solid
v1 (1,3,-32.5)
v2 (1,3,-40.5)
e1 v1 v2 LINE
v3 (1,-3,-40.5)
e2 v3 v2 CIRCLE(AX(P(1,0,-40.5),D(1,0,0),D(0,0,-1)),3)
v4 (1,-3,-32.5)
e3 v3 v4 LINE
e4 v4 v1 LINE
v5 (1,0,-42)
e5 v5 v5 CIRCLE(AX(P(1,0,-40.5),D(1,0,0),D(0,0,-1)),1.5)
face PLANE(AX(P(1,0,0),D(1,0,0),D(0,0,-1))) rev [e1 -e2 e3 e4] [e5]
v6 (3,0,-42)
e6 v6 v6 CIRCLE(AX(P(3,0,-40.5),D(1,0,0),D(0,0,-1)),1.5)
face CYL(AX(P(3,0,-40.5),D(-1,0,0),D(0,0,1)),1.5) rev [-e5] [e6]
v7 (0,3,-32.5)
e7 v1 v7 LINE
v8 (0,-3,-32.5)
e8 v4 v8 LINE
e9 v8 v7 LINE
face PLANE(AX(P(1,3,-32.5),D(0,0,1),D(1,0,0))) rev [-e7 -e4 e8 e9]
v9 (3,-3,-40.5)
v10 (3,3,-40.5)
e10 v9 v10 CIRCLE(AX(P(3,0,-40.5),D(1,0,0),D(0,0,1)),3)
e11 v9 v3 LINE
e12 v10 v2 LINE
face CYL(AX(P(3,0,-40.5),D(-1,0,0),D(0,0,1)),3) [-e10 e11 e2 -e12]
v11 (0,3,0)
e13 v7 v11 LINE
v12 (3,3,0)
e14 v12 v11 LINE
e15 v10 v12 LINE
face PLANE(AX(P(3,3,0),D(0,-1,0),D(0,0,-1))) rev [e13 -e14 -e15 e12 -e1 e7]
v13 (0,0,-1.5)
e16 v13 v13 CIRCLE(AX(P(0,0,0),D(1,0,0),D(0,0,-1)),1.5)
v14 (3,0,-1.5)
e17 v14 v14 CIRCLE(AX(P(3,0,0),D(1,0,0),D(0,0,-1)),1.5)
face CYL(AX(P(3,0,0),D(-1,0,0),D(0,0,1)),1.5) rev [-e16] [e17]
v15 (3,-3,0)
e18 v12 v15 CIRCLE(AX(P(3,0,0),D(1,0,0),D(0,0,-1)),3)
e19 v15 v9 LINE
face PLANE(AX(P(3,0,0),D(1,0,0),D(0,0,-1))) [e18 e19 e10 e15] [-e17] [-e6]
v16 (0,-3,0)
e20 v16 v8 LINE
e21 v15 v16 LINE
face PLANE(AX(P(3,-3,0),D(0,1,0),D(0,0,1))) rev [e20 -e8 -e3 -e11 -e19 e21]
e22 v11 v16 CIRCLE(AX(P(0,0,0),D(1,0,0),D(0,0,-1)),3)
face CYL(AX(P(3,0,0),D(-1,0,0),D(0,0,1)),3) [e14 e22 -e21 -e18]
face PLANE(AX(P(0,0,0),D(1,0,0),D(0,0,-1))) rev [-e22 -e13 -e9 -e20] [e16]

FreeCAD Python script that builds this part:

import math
import FreeCAD as App
import Part
import Sketcher
from FreeCAD import Vector


def add_polygon(sketch, points):
    """Adds a closed chain of lines whose ends are joined by coincident constraints."""
    first, n = sketch.GeometryCount, len(points)
    for a, b in zip(points, points[1:] + points[:1]):
        sketch.addGeometry(Part.LineSegment(App.Vector(*a, 0), App.Vector(*b, 0)), False)
    for i in range(n):
        sketch.addConstraint(Sketcher.Constraint("Coincident", first + i, 2, first + (i + 1) % n, 1))

doc = App.newDocument("Part")
params = doc.addObject("Spreadsheet::Sheet", "Params")
for row, (alias, value) in enumerate([
    ("sketch1_diameter", "3 mm"),
    ("sketch1_radius", "3 mm"),
    ("sketch1_height", "40.5 mm"),
    ("pad1_length", "3 mm"),
    ("sketch2_width", "6 mm"),
    ("sketch2_height", "11 mm"),
    ("pocket1_length", "1 mm"),
], start=1):
    params.set(f"A{row}", alias)
    params.set(f"B{row}", "=" + value)
    params.setAlias(f"B{row}", alias)

body = doc.addObject("PartDesign::Body", "Body")

# Sketch on YZ plane
sketch1 = body.newObject("Sketcher::SketchObject", "Sketch")
sketch1.AttachmentSupport = (doc.getObject("YZ_Plane"), [""])
sketch1.MapMode = "FlatFace"
sketch1.addGeometry(Part.LineSegment(Vector(3, -40.5, 0), Vector(3, 0, 0)), False)
sketch1.addGeometry(Part.ArcOfCircle(Part.Circle(Vector(0, 0, 0), Vector(0, 0, 1), 3), math.radians(0), math.radians(180)), False)
sketch1.addGeometry(Part.LineSegment(Vector(-3, 0, 0), Vector(-3, -40.5, 0)), False)
sketch1.addGeometry(Part.ArcOfCircle(Part.Circle(Vector(0, -40.5, 0), Vector(0, 0, 1), 3), math.radians(180), math.radians(360)), False)
sketch1.addGeometry(Part.Circle(Vector(0, -40.5, 0), Vector(0, 0, 1), 1.5), False)
sketch1.addGeometry(Part.Circle(Vector(0, 0, 0), Vector(0, 0, 1), 1.5), False)
sketch1.addConstraint(Sketcher.Constraint("Tangent", 0, 2, 1, 1))
sketch1.addConstraint(Sketcher.Constraint("Tangent", 1, 2, 2, 1))
sketch1.addConstraint(Sketcher.Constraint("Tangent", 2, 2, 3, 1))
sketch1.addConstraint(Sketcher.Constraint("Tangent", 3, 2, 0, 1))
sketch1.addConstraint(Sketcher.Constraint("Vertical", 0))
sketch1.addConstraint(Sketcher.Constraint("Vertical", 2))
sketch1.addConstraint(Sketcher.Constraint("Coincident", 1, 3, -1, 1))
sketch1.addConstraint(Sketcher.Constraint("Coincident", 5, 3, -1, 1))
sketch1.addConstraint(Sketcher.Constraint("Coincident", 4, 3, 3, 3))
sketch1.addConstraint(Sketcher.Constraint("Equal", 4, 5))
sketch1.addConstraint(Sketcher.Constraint("Diameter", 4, 3.0))
sketch1.addConstraint(Sketcher.Constraint("Radius", 1, 3.0))
sketch1.addConstraint(Sketcher.Constraint("DistanceY", 0, 1, 0, 2, 40.5))
sketch1.setExpression("Constraints[10]", "Params.sketch1_diameter")
sketch1.setExpression("Constraints[11]", "Params.sketch1_radius")
sketch1.setExpression("Constraints[12]", "Params.sketch1_height")
pad1 = body.newObject("PartDesign::Pad", "Pad")
pad1.Profile = sketch1
pad1.setExpression("Length", "Params.pad1_length")

# Sketch on YZ plane
sketch2 = body.newObject("Sketcher::SketchObject", "Sketch001")
sketch2.AttachmentSupport = (doc.getObject("YZ_Plane"), [""])
sketch2.MapMode = "FlatFace"
add_polygon(sketch2, [(3, -43.5), (-3, -43.5), (-3, -32.5), (3, -32.5)])  # lines 0-3
sketch2.addConstraint(Sketcher.Constraint("Horizontal", 0))
sketch2.addConstraint(Sketcher.Constraint("Vertical", 1))
sketch2.addConstraint(Sketcher.Constraint("Horizontal", 2))
sketch2.addConstraint(Sketcher.Constraint("Vertical", 3))
sketch2.addConstraint(Sketcher.Constraint("DistanceX", 0, 2, 0, 1, 6.0))
sketch2.addConstraint(Sketcher.Constraint("DistanceY", 1, 1, 1, 2, 11.0))
sketch2.addConstraint(Sketcher.Constraint("DistanceX", 0, 2, -1, 1, 3.0))
sketch2.addConstraint(Sketcher.Constraint("DistanceY", 0, 2, -1, 1, 43.5))
sketch2.setExpression("Constraints[8]", "Params.sketch2_width")
sketch2.setExpression("Constraints[9]", "Params.sketch2_height")
pocket1 = body.newObject("PartDesign::Pocket", "Pocket")
pocket1.Profile = sketch2
pocket1.setExpression("Length", "Params.pocket1_length")
pocket1.Reversed = True

doc.recompute()
